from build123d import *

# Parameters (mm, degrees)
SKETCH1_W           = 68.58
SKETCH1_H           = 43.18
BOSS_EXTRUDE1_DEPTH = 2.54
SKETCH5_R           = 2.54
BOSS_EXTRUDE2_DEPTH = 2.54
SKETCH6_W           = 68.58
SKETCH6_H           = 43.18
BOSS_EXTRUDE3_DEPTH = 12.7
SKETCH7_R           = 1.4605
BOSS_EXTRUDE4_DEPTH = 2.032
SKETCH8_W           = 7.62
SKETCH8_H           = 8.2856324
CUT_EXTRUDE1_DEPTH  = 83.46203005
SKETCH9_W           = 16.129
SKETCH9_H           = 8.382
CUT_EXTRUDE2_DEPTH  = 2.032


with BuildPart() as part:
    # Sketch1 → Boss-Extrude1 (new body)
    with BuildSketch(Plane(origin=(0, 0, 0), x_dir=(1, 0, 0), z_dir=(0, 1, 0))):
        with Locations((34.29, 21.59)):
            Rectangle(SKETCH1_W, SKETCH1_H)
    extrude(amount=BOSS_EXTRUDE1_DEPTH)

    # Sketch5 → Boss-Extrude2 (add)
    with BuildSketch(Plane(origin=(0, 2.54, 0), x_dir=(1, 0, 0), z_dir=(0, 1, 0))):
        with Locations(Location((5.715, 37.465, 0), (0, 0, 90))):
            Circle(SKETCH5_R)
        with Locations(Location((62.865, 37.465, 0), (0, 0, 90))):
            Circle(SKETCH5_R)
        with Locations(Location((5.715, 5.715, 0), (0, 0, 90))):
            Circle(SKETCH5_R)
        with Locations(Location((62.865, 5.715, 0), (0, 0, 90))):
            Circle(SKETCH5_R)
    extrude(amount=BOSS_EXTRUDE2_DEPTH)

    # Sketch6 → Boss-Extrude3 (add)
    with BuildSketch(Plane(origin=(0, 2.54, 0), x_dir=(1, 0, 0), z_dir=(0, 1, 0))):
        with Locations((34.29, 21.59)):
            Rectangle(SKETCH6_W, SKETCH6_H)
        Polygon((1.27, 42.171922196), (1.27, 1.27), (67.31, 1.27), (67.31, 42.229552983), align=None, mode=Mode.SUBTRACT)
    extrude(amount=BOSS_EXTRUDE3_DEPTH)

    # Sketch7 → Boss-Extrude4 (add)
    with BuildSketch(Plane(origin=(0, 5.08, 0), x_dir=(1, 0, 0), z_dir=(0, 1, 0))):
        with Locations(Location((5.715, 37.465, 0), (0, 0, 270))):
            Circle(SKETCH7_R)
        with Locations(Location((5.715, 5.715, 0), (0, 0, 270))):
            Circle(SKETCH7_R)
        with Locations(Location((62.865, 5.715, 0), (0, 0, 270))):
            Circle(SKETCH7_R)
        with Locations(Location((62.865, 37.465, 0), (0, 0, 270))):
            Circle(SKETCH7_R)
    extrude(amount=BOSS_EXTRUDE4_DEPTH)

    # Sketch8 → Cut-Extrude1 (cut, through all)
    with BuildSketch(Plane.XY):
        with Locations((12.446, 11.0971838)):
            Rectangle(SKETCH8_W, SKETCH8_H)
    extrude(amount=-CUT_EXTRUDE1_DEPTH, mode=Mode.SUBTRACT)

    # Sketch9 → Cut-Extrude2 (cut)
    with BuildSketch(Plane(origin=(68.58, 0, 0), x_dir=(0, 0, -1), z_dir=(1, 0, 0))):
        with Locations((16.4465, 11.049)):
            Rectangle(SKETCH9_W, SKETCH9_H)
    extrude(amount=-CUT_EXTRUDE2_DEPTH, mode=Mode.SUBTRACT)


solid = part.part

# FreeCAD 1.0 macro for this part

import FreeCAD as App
import Part
import Sketcher

V = App.Vector
Q = App.Units.Quantity


def add_polygon(sketch, points):
    """Adds a closed chain of lines whose ends are joined by coincident constraints."""
    first, n = sketch.GeometryCount, len(points)
    for a, b in zip(points, points[1:] + points[:1]):
        sketch.addGeometry(Part.LineSegment(App.Vector(*a, 0), App.Vector(*b, 0)), False)
    for i in range(n):
        sketch.addConstraint(Sketcher.Constraint("Coincident", first + i, 2, first + (i + 1) % n, 1))

doc = App.newDocument("Part")
body = doc.addObject("PartDesign::Body", "Body")

sketch1 = body.newObject("Sketcher::SketchObject", "Sketch")
sketch1.AttachmentSupport = (doc.getObject("XZ_Plane"), [""])
sketch1.MapMode = "FlatFace"
add_polygon(sketch1, [(0, -43.18), (0, 0), (68.58, 0), (68.58, -43.18)])
sketch1.addConstraint([
    Sketcher.Constraint("Vertical", 0),
    Sketcher.Constraint("Horizontal", 1),
    Sketcher.Constraint("Vertical", 2),
    Sketcher.Constraint("Horizontal", 3),
    Sketcher.Constraint("Coincident", 0, 2, -1, 1),
    Sketcher.Constraint("DistanceX", 1, 1, 1, 2, Q("2.7 in")),
    Sketcher.Constraint("DistanceY", 0, 1, 0, 2, Q("1.7 in")),
])
pad1 = body.newObject("PartDesign::Pad", "Pad")
pad1.Profile = sketch1
pad1.Length = Q("0.1 in")
pad1.Reversed = True

sketch2 = body.newObject("Sketcher::SketchObject", "Sketch001")
sketch2.AttachmentSupport = (doc.getObject("XZ_Plane"), [""])
sketch2.MapMode = "FlatFace"
sketch2.AttachmentOffset = App.Placement(V(0, 0, -0.1 * 25.4), App.Rotation())
sketch2.addGeometry([
    Part.Circle(V(5.715, -37.465, 0), V(0, 0, 1), 2.54),
    Part.Circle(V(62.865, -37.465, 0), V(0, 0, 1), 2.54),
    Part.Circle(V(5.715, -5.715, 0), V(0, 0, 1), 2.54),
    Part.Circle(V(62.865, -5.715, 0), V(0, 0, 1), 2.54),
], False)
sketch2.addConstraint([
    Sketcher.Constraint("Equal", 0, 1),
    Sketcher.Constraint("Equal", 1, 2),
    Sketcher.Constraint("Equal", 2, 3),
    Sketcher.Constraint("Horizontal", 0, 3, 1, 3),
    Sketcher.Constraint("Horizontal", 2, 3, 3, 3),
    Sketcher.Constraint("Vertical", 0, 3, 2, 3),
    Sketcher.Constraint("Vertical", 1, 3, 3, 3),
    Sketcher.Constraint("Diameter", 0, Q("0.2 in")),
    Sketcher.Constraint("DistanceX", 0, 3, 1, 3, Q("2.25 in")),
    Sketcher.Constraint("DistanceY", 0, 3, 2, 3, Q("1.25 in")),
    Sketcher.Constraint("DistanceX", -1, 1, 0, 3, Q("0.225 in")),
    Sketcher.Constraint("DistanceY", 0, 3, -1, 1, Q("1.475 in")),
])
pad2 = body.newObject("PartDesign::Pad", "Pad001")
pad2.Profile = sketch2
pad2.Length = Q("0.1 in")
pad2.Reversed = True

sketch3 = body.newObject("Sketcher::SketchObject", "Sketch002")
sketch3.AttachmentSupport = (doc.getObject("XZ_Plane"), [""])
sketch3.MapMode = "FlatFace"
sketch3.AttachmentOffset = App.Placement(V(0, 0, -0.1 * 25.4), App.Rotation())
add_polygon(sketch3, [(0, -43.18), (0, 0), (68.58, 0), (68.58, -43.18)])
add_polygon(sketch3, [(1.27, -1.27), (1.27, -42.171922), (67.31, -42.229553), (67.31, -1.27)])
sketch3.addConstraint([
    Sketcher.Constraint("Vertical", 0),
    Sketcher.Constraint("Horizontal", 1),
    Sketcher.Constraint("Vertical", 2),
    Sketcher.Constraint("Horizontal", 3),
    Sketcher.Constraint("Vertical", 4),
    Sketcher.Constraint("Vertical", 6),
    Sketcher.Constraint("Horizontal", 7),
    Sketcher.Constraint("Coincident", 0, 2, -1, 1),
    Sketcher.Constraint("DistanceX", 1, 1, 1, 2, Q("2.7 in")),
    Sketcher.Constraint("DistanceX", 7, 2, 7, 1, Q("2.6 in")),
    Sketcher.Constraint("DistanceY", 0, 1, 0, 2, Q("1.7 in")),
    Sketcher.Constraint("DistanceX", -1, 1, 4, 2, Q("0.05 in")),
    Sketcher.Constraint("DistanceY", 6, 2, -1, 1, Q("0.05 in")),
    Sketcher.Constraint("Angle", 5, Q("-0.05 deg")),
    Sketcher.Constraint("DistanceY", 4, 2, 4, 1, Q("40.901922 mm")),
])
pad3 = body.newObject("PartDesign::Pad", "Pad002")
pad3.Profile = sketch3
pad3.Length = Q("0.5 in")
pad3.Reversed = True

sketch4 = body.newObject("Sketcher::SketchObject", "Sketch003")
sketch4.AttachmentSupport = (doc.getObject("XZ_Plane"), [""])
sketch4.MapMode = "FlatFace"
sketch4.AttachmentOffset = App.Placement(V(0, 0, -0.2 * 25.4), App.Rotation())
sketch4.addGeometry([
    Part.Circle(V(5.715, -37.465, 0), V(0, 0, 1), 1.4605),
    Part.Circle(V(5.715, -5.715, 0), V(0, 0, 1), 1.4605),
    Part.Circle(V(62.865, -5.715, 0), V(0, 0, 1), 1.4605),
    Part.Circle(V(62.865, -37.465, 0), V(0, 0, 1), 1.4605),
], False)
sketch4.addConstraint([
    Sketcher.Constraint("Equal", 0, 1),
    Sketcher.Constraint("Equal", 1, 2),
    Sketcher.Constraint("Equal", 2, 3),
    Sketcher.Constraint("Horizontal", 1, 3, 2, 3),
    Sketcher.Constraint("Horizontal", 0, 3, 3, 3),
    Sketcher.Constraint("Vertical", 0, 3, 1, 3),
    Sketcher.Constraint("Vertical", 2, 3, 3, 3),
    Sketcher.Constraint("Diameter", 0, Q("0.115 in")),
    Sketcher.Constraint("DistanceY", 0, 3, 1, 3, Q("1.25 in")),
    Sketcher.Constraint("DistanceX", 1, 3, 2, 3, Q("2.25 in")),
    Sketcher.Constraint("DistanceX", -1, 1, 0, 3, Q("0.225 in")),
    Sketcher.Constraint("DistanceY", 0, 3, -1, 1, Q("1.475 in")),
])
pad4 = body.newObject("PartDesign::Pad", "Pad003")
pad4.Profile = sketch4
pad4.Length = Q("0.08 in")
pad4.Reversed = True

sketch5 = body.newObject("Sketcher::SketchObject", "Sketch004")
sketch5.AttachmentSupport = (doc.getObject("XY_Plane"), [""])
sketch5.MapMode = "FlatFace"
add_polygon(sketch5, [(8.636, 15.24), (8.636, 6.954368), (16.256, 6.954368), (16.256, 15.24)])
sketch5.addConstraint([
    Sketcher.Constraint("Vertical", 0),
    Sketcher.Constraint("Horizontal", 1),
    Sketcher.Constraint("Vertical", 2),
    Sketcher.Constraint("Horizontal", 3),
    Sketcher.Constraint("DistanceX", 1, 1, 1, 2, Q("0.3 in")),
    Sketcher.Constraint("DistanceY", -1, 1, 2, 2, Q("0.6 in")),
    Sketcher.Constraint("DistanceX", -1, 1, 0, 2, Q("0.34 in")),
    Sketcher.Constraint("DistanceY", 0, 2, 0, 1, Q("8.285632 mm")),
])
pocket1 = body.newObject("PartDesign::Pocket", "Pocket")
pocket1.Profile = sketch5
pocket1.Type = "ThroughAll"

sketch6 = body.newObject("Sketcher::SketchObject", "Sketch005")
sketch6.AttachmentSupport = (doc.getObject("YZ_Plane"), [""])
sketch6.MapMode = "FlatFace"
sketch6.AttachmentOffset = App.Placement(V(0, 0, 2.7 * 25.4), App.Rotation())
add_polygon(sketch6, [(15.24, -8.382), (6.858, -8.382), (6.858, -24.511), (15.24, -24.511)])
sketch6.addConstraint([
    Sketcher.Constraint("Horizontal", 0),
    Sketcher.Constraint("Vertical", 1),
    Sketcher.Constraint("Horizontal", 2),
    Sketcher.Constraint("Vertical", 3),
    Sketcher.Constraint("DistanceX", 0, 2, 0, 1, Q("0.33 in")),
    Sketcher.Constraint("DistanceX", -1, 1, 2, 2, Q("0.6 in")),
    Sketcher.Constraint("DistanceY", 1, 2, 1, 1, Q("0.635 in")),
    Sketcher.Constraint("DistanceY", 0, 2, -1, 1, Q("0.33 in")),
])
pocket2 = body.newObject("PartDesign::Pocket", "Pocket001")
pocket2.Profile = sketch6
pocket2.Length = Q("0.08 in")

doc.recompute()
